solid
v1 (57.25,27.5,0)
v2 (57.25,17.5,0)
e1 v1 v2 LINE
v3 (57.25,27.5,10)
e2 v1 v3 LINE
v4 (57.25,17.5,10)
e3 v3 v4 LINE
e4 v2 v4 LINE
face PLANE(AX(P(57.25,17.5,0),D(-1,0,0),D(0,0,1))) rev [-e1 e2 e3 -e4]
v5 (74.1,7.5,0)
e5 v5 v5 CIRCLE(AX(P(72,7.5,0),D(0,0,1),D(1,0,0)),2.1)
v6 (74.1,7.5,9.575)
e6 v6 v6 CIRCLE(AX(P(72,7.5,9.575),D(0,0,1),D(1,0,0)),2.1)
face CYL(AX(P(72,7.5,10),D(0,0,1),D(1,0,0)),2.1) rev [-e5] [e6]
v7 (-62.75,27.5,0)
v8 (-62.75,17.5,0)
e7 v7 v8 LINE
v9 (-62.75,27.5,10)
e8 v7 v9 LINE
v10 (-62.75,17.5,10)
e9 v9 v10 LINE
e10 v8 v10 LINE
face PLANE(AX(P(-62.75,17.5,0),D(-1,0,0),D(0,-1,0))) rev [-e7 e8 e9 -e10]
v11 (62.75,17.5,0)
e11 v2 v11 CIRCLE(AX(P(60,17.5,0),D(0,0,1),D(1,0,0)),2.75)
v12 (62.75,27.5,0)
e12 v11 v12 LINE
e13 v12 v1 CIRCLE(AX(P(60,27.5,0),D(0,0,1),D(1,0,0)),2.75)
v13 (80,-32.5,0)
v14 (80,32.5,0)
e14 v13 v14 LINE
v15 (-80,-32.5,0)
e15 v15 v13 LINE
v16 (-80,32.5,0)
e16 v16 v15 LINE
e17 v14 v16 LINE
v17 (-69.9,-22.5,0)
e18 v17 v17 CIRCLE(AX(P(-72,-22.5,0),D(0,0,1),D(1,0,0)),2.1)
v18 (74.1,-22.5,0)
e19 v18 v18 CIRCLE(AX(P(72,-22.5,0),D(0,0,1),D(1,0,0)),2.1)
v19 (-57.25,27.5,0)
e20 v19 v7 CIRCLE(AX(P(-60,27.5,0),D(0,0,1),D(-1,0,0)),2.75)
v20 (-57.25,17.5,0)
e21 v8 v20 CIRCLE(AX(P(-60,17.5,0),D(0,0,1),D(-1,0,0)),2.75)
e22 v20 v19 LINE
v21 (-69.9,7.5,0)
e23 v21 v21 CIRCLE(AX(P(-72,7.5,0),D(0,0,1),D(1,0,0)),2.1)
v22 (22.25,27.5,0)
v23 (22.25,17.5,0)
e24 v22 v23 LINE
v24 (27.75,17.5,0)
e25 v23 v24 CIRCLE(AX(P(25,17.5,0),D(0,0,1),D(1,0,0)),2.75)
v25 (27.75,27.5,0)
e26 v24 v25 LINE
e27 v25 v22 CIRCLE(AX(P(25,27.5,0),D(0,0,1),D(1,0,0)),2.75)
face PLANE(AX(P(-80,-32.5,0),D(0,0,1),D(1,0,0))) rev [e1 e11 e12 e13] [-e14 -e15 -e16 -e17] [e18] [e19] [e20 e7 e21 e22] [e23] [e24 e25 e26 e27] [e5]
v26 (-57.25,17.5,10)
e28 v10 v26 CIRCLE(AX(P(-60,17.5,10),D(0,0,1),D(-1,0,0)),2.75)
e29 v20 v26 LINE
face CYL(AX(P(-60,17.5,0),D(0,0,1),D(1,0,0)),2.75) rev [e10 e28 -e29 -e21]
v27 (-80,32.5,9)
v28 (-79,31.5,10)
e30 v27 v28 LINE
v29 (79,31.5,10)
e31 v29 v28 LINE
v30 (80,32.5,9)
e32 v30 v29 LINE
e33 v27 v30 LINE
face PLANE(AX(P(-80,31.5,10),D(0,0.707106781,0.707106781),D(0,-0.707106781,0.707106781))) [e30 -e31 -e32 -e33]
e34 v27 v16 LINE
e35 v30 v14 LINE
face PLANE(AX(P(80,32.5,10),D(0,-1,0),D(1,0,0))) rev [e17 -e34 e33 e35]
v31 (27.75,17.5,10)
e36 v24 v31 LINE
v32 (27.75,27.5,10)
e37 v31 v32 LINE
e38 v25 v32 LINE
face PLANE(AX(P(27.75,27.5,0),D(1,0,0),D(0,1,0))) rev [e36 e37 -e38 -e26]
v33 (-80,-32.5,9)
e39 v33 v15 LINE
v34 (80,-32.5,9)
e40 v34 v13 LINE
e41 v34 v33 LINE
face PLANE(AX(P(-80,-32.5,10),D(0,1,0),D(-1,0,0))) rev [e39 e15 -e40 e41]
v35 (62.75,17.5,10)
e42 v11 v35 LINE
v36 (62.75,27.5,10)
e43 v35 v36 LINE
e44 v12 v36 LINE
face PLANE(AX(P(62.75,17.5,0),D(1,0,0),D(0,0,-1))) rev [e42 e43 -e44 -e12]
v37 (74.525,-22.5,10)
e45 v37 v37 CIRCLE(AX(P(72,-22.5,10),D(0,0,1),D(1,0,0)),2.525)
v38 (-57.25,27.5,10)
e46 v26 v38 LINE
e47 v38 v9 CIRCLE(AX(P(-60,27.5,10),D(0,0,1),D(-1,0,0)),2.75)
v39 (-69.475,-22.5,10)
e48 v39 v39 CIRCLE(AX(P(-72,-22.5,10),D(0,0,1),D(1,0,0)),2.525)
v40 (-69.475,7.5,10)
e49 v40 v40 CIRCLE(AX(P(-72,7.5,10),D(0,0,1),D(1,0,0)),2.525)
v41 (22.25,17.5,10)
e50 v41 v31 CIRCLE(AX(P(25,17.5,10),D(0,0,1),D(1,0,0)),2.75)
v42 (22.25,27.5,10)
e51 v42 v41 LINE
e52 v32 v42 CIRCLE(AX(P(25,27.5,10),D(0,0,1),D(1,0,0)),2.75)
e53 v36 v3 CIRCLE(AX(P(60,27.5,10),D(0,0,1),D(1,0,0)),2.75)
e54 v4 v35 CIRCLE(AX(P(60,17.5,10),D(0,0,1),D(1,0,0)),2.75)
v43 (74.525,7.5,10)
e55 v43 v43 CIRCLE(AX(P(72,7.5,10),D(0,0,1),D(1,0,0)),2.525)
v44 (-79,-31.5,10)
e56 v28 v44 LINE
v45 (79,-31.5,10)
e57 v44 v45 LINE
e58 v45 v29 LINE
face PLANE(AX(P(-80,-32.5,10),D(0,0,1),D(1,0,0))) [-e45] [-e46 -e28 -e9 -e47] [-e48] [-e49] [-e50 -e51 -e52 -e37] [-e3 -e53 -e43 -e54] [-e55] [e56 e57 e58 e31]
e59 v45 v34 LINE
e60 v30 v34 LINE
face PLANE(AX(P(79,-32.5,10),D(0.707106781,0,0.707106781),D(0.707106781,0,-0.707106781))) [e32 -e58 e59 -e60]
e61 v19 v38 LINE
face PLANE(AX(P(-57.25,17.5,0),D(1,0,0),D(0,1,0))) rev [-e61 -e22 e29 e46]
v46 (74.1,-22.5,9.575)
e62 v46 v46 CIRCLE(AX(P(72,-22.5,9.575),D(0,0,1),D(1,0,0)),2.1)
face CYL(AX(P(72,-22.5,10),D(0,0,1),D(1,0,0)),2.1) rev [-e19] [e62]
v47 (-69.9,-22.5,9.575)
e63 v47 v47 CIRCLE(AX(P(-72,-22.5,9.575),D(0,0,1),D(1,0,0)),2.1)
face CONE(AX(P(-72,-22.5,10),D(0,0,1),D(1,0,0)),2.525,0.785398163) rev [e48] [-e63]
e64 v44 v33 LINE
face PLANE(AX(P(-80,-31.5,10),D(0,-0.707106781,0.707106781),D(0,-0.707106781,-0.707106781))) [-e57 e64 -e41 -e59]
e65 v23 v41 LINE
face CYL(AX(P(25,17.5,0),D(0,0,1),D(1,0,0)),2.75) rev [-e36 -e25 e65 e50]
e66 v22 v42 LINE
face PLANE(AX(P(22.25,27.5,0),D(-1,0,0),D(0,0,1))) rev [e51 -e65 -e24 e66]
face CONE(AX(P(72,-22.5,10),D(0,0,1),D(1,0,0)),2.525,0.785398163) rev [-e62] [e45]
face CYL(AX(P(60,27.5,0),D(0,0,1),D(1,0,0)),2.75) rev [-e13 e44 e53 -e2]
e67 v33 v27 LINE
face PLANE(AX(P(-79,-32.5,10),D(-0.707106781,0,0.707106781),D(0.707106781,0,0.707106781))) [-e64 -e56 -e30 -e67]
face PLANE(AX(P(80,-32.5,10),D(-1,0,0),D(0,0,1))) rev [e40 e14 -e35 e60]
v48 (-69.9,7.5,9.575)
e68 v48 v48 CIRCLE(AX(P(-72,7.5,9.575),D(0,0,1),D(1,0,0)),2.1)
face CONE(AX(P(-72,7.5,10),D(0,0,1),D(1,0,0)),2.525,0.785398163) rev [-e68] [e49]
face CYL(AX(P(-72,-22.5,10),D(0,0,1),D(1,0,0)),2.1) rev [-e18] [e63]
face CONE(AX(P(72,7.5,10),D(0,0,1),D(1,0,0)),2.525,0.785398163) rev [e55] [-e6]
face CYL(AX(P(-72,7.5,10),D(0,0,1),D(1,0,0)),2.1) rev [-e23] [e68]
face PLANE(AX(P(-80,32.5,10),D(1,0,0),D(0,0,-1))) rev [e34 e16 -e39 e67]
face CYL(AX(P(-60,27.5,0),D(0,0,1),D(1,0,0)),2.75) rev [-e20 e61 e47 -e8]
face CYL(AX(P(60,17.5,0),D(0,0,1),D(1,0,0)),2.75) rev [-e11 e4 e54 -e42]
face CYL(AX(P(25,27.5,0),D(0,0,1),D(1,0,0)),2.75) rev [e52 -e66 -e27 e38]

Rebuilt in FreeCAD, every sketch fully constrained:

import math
import FreeCAD as App
import Part
import Sketcher
from FreeCAD import Vector


def edges_at(feature, points):
    """Names of the edges that pass closest to the given points."""
    edges = feature.Shape.Edges
    near = lambda p: min(range(len(edges)), key=lambda i: edges[i].distToShape(Part.Vertex(*p))[0])
    return sorted({f"Edge{near(p) + 1}" for p in points})


def add_polygon(sketch, points):
    """Adds a closed chain of lines whose ends are joined by coincident constraints."""
    first, n = sketch.GeometryCount, len(points)
    for a, b in zip(points, points[1:] + points[:1]):
        sketch.addGeometry(Part.LineSegment(App.Vector(*a, 0), App.Vector(*b, 0)), False)
    for i in range(n):
        sketch.addConstraint(Sketcher.Constraint("Coincident", first + i, 2, first + (i + 1) % n, 1))

doc = App.newDocument("Part")
body = doc.addObject("PartDesign::Body", "Body")

# Sketch on XY plane
sketch1 = body.newObject("Sketcher::SketchObject", "Sketch")
sketch1.AttachmentSupport = (doc.getObject("XY_Plane"), [""])
sketch1.MapMode = "FlatFace"
add_polygon(sketch1, [(-80, 32), (-80, -32), (80, -32), (80, 32)])  # lines 0-3
sketch1.addConstraint([
    Sketcher.Constraint("Vertical", 0),
    Sketcher.Constraint("Horizontal", 1),
    Sketcher.Constraint("Vertical", 2),
    Sketcher.Constraint("Horizontal", 3),
    Sketcher.Constraint("Symmetric", 0, 2, 2, 2, -1, 1),
    Sketcher.Constraint("DistanceX", 1, 1, 1, 2, 160.0),
    Sketcher.Constraint("DistanceY", 0, 2, 0, 1, 65.0),
])
pad1 = body.newObject("PartDesign::Pad", "Pad")
pad1.Profile = sketch1
pad1.Length = 10

# Sketch on XY plane
sketch2 = body.newObject("Sketcher::SketchObject", "Sketch001")
sketch2.AttachmentSupport = (doc.getObject("XY_Plane"), [""])
sketch2.MapMode = "FlatFace"
sketch2.AttachmentOffset = App.Placement(Vector(0, 0, 10), App.Rotation())
sketch2.addGeometry([
    Part.Circle(Vector(-72, 7.5, 0), Vector(0, 0, 1), 2.1),
    Part.Circle(Vector(-72, -22.5, 0), Vector(0, 0, 1), 2.1),
    Part.Circle(Vector(72, -22.5, 0), Vector(0, 0, 1), 2.1),
    Part.Circle(Vector(72, 7.5, 0), Vector(0, 0, 1), 2.1),
], False)
sketch2.addConstraint([
    Sketcher.Constraint("Equal", 0, 1),
    Sketcher.Constraint("Equal", 1, 2),
    Sketcher.Constraint("Equal", 2, 3),
    Sketcher.Constraint("Symmetric", 1, 3, 2, 3, -2),
    Sketcher.Constraint("Symmetric", 0, 3, 3, 3, -2),
    Sketcher.Constraint("Vertical", 0, 3, 1, 3),
    Sketcher.Constraint("Diameter", 0, 4.2),
    Sketcher.Constraint("DistanceX", 0, 3, -1, 1, 72.0),
    Sketcher.Constraint("DistanceY", 1, 3, 0, 3, 30.0),
    Sketcher.Constraint("DistanceY", -1, 1, 0, 3, 7.5),
])
doc.recompute()
hole = body.newObject("PartDesign::Hole", "Hole")
hole.Profile = sketch2
hole.ThreadType = "None"
hole.Diameter = 4.2
hole.DepthType = "Dimension"
hole.Depth = 14
hole.DrillPoint = "Angled"
hole.DrillPointAngle = 118
hole.HoleCutType = "Countersink"
hole.HoleCutDiameter = 5.05
hole.HoleCutCountersinkAngle = 90

# Sketch on XY plane
sketch3 = body.newObject("Sketcher::SketchObject", "Sketch002")
sketch3.AttachmentSupport = (doc.getObject("XY_Plane"), [""])
sketch3.MapMode = "FlatFace"
sketch3.AttachmentOffset = App.Placement(Vector(0, 0, 10), App.Rotation())
sketch3.addGeometry([
    Part.LineSegment(Vector(27.8, 17.5, 0), Vector(27.8, 27.5, 0)),  # 0
    Part.ArcOfCircle(Part.Circle(Vector(25, 27.5, 0), Vector(0, 0, 1), 2.8), math.radians(0), math.radians(180)),  # 1
    Part.LineSegment(Vector(22.2, 27.5, 0), Vector(22.2, 17.5, 0)),  # 2
    Part.ArcOfCircle(Part.Circle(Vector(25, 17.5, 0), Vector(0, 0, 1), 2.8), math.radians(180), math.radians(360)),  # 3
    Part.LineSegment(Vector(57.2, 27.5, 0), Vector(57.2, 17.5, 0)),  # 4
    Part.ArcOfCircle(Part.Circle(Vector(60, 17.5, 0), Vector(0, 0, 1), 2.8), math.radians(180), math.radians(360)),  # 5
    Part.LineSegment(Vector(62.8, 17.5, 0), Vector(62.8, 27.5, 0)),  # 6
    Part.ArcOfCircle(Part.Circle(Vector(60, 27.5, 0), Vector(0, 0, 1), 2.8), math.radians(0), math.radians(180)),  # 7
    Part.LineSegment(Vector(-57.2, 17.5, 0), Vector(-57.2, 27.5, 0)),  # 8
    Part.ArcOfCircle(Part.Circle(Vector(-60, 27.5, 0), Vector(0, 0, 1), 2.8), math.radians(0), math.radians(180)),  # 9
    Part.LineSegment(Vector(-62.8, 27.5, 0), Vector(-62.8, 17.5, 0)),  # 10
    Part.ArcOfCircle(Part.Circle(Vector(-60, 17.5, 0), Vector(0, 0, 1), 2.8), math.radians(180), math.radians(360)),  # 11
], False)
sketch3.addConstraint([
    Sketcher.Constraint("Tangent", 0, 2, 1, 1),
    Sketcher.Constraint("Tangent", 1, 2, 2, 1),
    Sketcher.Constraint("Tangent", 2, 2, 3, 1),
    Sketcher.Constraint("Tangent", 3, 2, 0, 1),
    Sketcher.Constraint("Tangent", 4, 2, 5, 1),
    Sketcher.Constraint("Tangent", 5, 2, 6, 1),
    Sketcher.Constraint("Tangent", 6, 2, 7, 1),
    Sketcher.Constraint("Tangent", 7, 2, 4, 1),
    Sketcher.Constraint("Tangent", 8, 2, 9, 1),
    Sketcher.Constraint("Tangent", 9, 2, 10, 1),
    Sketcher.Constraint("Tangent", 10, 2, 11, 1),
    Sketcher.Constraint("Tangent", 11, 2, 8, 1),
    Sketcher.Constraint("Vertical", 0),
    Sketcher.Constraint("Vertical", 2),
    Sketcher.Constraint("Vertical", 4),
    Sketcher.Constraint("Vertical", 6),
    Sketcher.Constraint("Vertical", 8),
    Sketcher.Constraint("Vertical", 10),
    Sketcher.Constraint("Equal", 3, 5),
    Sketcher.Constraint("Equal", 7, 9),
    Sketcher.Constraint("Symmetric", 7, 3, 9, 3, -2),
    Sketcher.Constraint("Horizontal", 3, 3, 5, 3),
    Sketcher.Constraint("Horizontal", 1, 3, 7, 3),
    Sketcher.Constraint("Horizontal", 5, 3, 11, 3),
    Sketcher.Constraint("DistanceY", 0, 1, 0, 2, 10.0),
    Sketcher.Constraint("Radius", 1, 2.75),
    Sketcher.Constraint("DistanceX", -1, 1, 1, 3, 25.0),
    Sketcher.Constraint("DistanceX", -1, 1, 5, 3, 60.0),
    Sketcher.Constraint("DistanceY", -1, 1, 1, 3, 27.5),
])
pocket1 = body.newObject("PartDesign::Pocket", "Pocket")
pocket1.Profile = sketch3
pocket1.Type = "ThroughAll"
doc.recompute()

chamfer = body.newObject("PartDesign::Chamfer", "Chamfer")
chamfer.Base = (pocket1, edges_at(pocket1, [
    (80, 0, 10),
    (0, 32.5, 10),
    (-80, 0, 10),
    (0, -32.5, 10),
]))
chamfer.Size = 1

doc.recompute()
